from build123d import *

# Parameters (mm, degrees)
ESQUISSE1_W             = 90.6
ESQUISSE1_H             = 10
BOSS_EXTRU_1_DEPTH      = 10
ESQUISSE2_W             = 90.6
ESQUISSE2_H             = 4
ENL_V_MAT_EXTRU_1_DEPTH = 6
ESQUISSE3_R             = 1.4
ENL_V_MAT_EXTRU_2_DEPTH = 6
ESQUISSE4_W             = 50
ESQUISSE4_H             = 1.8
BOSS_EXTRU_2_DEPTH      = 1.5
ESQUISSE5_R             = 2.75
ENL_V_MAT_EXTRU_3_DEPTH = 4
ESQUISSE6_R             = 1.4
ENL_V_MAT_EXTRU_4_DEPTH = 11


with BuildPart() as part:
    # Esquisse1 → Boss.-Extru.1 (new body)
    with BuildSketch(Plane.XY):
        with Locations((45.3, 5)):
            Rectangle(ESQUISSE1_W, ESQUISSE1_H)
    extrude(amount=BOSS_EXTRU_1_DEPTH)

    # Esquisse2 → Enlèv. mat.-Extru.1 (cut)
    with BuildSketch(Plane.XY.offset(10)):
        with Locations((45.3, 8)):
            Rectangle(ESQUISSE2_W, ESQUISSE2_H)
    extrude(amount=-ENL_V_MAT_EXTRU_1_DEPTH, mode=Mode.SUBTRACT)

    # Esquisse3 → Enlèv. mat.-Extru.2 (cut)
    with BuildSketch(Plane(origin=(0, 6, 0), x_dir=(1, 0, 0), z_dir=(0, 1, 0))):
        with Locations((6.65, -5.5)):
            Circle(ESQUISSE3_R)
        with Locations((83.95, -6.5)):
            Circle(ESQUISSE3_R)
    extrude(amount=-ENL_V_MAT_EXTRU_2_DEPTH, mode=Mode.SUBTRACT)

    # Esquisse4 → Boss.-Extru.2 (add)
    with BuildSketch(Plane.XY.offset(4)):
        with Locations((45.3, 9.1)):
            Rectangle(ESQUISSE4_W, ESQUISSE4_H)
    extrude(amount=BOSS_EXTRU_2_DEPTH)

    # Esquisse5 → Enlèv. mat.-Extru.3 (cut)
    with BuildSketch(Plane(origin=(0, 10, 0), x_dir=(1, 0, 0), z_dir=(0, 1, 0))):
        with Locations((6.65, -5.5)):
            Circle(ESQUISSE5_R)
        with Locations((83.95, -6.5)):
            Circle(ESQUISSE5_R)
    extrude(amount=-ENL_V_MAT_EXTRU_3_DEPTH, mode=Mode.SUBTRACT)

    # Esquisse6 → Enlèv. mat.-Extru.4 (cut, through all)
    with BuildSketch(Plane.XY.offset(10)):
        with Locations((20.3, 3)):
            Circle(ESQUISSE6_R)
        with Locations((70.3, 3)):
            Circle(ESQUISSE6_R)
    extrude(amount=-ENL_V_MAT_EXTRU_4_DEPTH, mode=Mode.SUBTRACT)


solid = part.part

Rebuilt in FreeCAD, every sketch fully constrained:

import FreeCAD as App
import Part
import Sketcher

doc = App.newDocument("Part")
body = doc.addObject("PartDesign::Body", "Body")

# Sketch on XY plane
sketch1 = body.newObject("Sketcher::SketchObject", "Sketch")
sketch1.AttachmentSupport = (doc.getObject("XY_Plane"), [""])
sketch1.MapMode = "FlatFace"
sketch1.addGeometry([
    Part.LineSegment(App.Vector(0, 10, 0), App.Vector(0, 0, 0)),
    Part.LineSegment(App.Vector(0, 0, 0), App.Vector(91, 0, 0)),
    Part.LineSegment(App.Vector(91, 0, 0), App.Vector(91, 10, 0)),
    Part.LineSegment(App.Vector(91, 10, 0), App.Vector(0, 10, 0)),
], False)
sketch1.addConstraint([
    Sketcher.Constraint("Coincident", 0, 2, 1, 1),
    Sketcher.Constraint("Coincident", 1, 2, 2, 1),
    Sketcher.Constraint("Coincident", 2, 2, 3, 1),
    Sketcher.Constraint("Coincident", 3, 2, 0, 1),
    Sketcher.Constraint("Vertical", 0),
    Sketcher.Constraint("Horizontal", 1),
    Sketcher.Constraint("Vertical", 2),
    Sketcher.Constraint("Horizontal", 3),
    Sketcher.Constraint("Coincident", 0, 2, -1, 1),
    Sketcher.Constraint("DistanceY", 0, 2, 0, 1, 10.0),
    Sketcher.Constraint("DistanceX", 1, 1, 1, 2, 90.6),
])
pad1 = body.newObject("PartDesign::Pad", "Pad")
pad1.Profile = sketch1
pad1.Length = 10

# Sketch on XY plane
sketch2 = body.newObject("Sketcher::SketchObject", "Sketch001")
sketch2.AttachmentSupport = (doc.getObject("XY_Plane"), [""])
sketch2.MapMode = "FlatFace"
sketch2.AttachmentOffset = App.Placement(App.Vector(0, 0, 10), App.Rotation())
sketch2.addGeometry([
    Part.LineSegment(App.Vector(0, 10, 0), App.Vector(0, 6, 0)),
    Part.LineSegment(App.Vector(0, 6, 0), App.Vector(90.6, 6, 0)),
    Part.LineSegment(App.Vector(90.6, 6, 0), App.Vector(90.6, 10, 0)),
    Part.LineSegment(App.Vector(90.6, 10, 0), App.Vector(0, 10, 0)),
], False)
sketch2.addConstraint([
    Sketcher.Constraint("Coincident", 0, 2, 1, 1),
    Sketcher.Constraint("Coincident", 1, 2, 2, 1),
    Sketcher.Constraint("Coincident", 2, 2, 3, 1),
    Sketcher.Constraint("Coincident", 3, 2, 0, 1),
    Sketcher.Constraint("Vertical", 0),
    Sketcher.Constraint("Horizontal", 1),
    Sketcher.Constraint("Vertical", 2),
    Sketcher.Constraint("Horizontal", 3),
    Sketcher.Constraint("PointOnObject", 0, 2, -2),
    Sketcher.Constraint("DistanceY", 0, 2, 0, 1, 4.0),
    Sketcher.Constraint("DistanceX", 1, 1, 1, 2, 90.6),
    Sketcher.Constraint("DistanceY", -1, 1, 0, 2, 6.0),
])
pocket1 = body.newObject("PartDesign::Pocket", "Pocket")
pocket1.Profile = sketch2
pocket1.Length = 6

# Sketch on XZ plane
sketch3 = body.newObject("Sketcher::SketchObject", "Sketch002")
sketch3.AttachmentSupport = (doc.getObject("XZ_Plane"), [""])
sketch3.MapMode = "FlatFace"
sketch3.AttachmentOffset = App.Placement(App.Vector(0, 0, -6), App.Rotation())
sketch3.addGeometry([
    Part.Circle(App.Vector(6.7, 5.5, 0), App.Vector(0, 0, 1), 1.4),
    Part.Circle(App.Vector(84, 6.5, 0), App.Vector(0, 0, 1), 1.4),
], False)
sketch3.addConstraint([
    Sketcher.Constraint("Equal", 0, 1),
    Sketcher.Constraint("Diameter", 0, 2.8),
    Sketcher.Constraint("DistanceY", 0, 3, 1, 3, 1.0),
    Sketcher.Constraint("DistanceY", -1, 1, 0, 3, 5.5),
    Sketcher.Constraint("DistanceX", 0, 3, 1, 3, 77.3),
    Sketcher.Constraint("DistanceX", -1, 1, 0, 3, 6.65),
])
pocket2 = body.newObject("PartDesign::Pocket", "Pocket001")
pocket2.Profile = sketch3
pocket2.Length = 6
pocket2.Reversed = True

# Sketch on XY plane
sketch4 = body.newObject("Sketcher::SketchObject", "Sketch003")
sketch4.AttachmentSupport = (doc.getObject("XY_Plane"), [""])
sketch4.MapMode = "FlatFace"
sketch4.AttachmentOffset = App.Placement(App.Vector(0, 0, 4), App.Rotation())
sketch4.addGeometry([
    Part.LineSegment(App.Vector(20.3, 10, 0), App.Vector(20.3, 8.2, 0)),
    Part.LineSegment(App.Vector(20.3, 8.2, 0), App.Vector(70.3, 8.2, 0)),
    Part.LineSegment(App.Vector(70.3, 8.2, 0), App.Vector(70.3, 10, 0)),
    Part.LineSegment(App.Vector(70.3, 10, 0), App.Vector(20.3, 10, 0)),
], False)
sketch4.addConstraint([
    Sketcher.Constraint("Coincident", 0, 2, 1, 1),
    Sketcher.Constraint("Coincident", 1, 2, 2, 1),
    Sketcher.Constraint("Coincident", 2, 2, 3, 1),
    Sketcher.Constraint("Coincident", 3, 2, 0, 1),
    Sketcher.Constraint("Vertical", 0),
    Sketcher.Constraint("Horizontal", 1),
    Sketcher.Constraint("Vertical", 2),
    Sketcher.Constraint("Horizontal", 3),
    Sketcher.Constraint("DistanceX", 1, 1, 1, 2, 50.0),
    Sketcher.Constraint("DistanceY", 0, 2, 0, 1, 1.8),
    Sketcher.Constraint("DistanceY", -1, 1, 2, 2, 10.0),
    Sketcher.Constraint("DistanceX", -1, 1, 0, 2, 20.3),
])
pad2 = body.newObject("PartDesign::Pad", "Pad001")
pad2.Profile = sketch4
pad2.Length = 1.5

# Sketch on XZ plane
sketch5 = body.newObject("Sketcher::SketchObject", "Sketch004")
sketch5.AttachmentSupport = (doc.getObject("XZ_Plane"), [""])
sketch5.MapMode = "FlatFace"
sketch5.AttachmentOffset = App.Placement(App.Vector(0, 0, -10), App.Rotation())
sketch5.addGeometry([
    Part.Circle(App.Vector(6.7, 5.5, 0), App.Vector(0, 0, 1), 2.8),
    Part.Circle(App.Vector(84, 6.5, 0), App.Vector(0, 0, 1), 2.8),
], False)
sketch5.addConstraint([
    Sketcher.Constraint("Equal", 0, 1),
    Sketcher.Constraint("Diameter", 0, 5.5),
    Sketcher.Constraint("DistanceY", 0, 3, 1, 3, 1.0),
    Sketcher.Constraint("DistanceY", -1, 1, 0, 3, 5.5),
    Sketcher.Constraint("DistanceX", 0, 3, 1, 3, 77.3),
    Sketcher.Constraint("DistanceX", -1, 1, 0, 3, 6.65),
])
pocket3 = body.newObject("PartDesign::Pocket", "Pocket002")
pocket3.Profile = sketch5
pocket3.Length = 4
pocket3.Reversed = True

# Sketch on XY plane
sketch6 = body.newObject("Sketcher::SketchObject", "Sketch005")
sketch6.AttachmentSupport = (doc.getObject("XY_Plane"), [""])
sketch6.MapMode = "FlatFace"
sketch6.AttachmentOffset = App.Placement(App.Vector(0, 0, 10), App.Rotation())
sketch6.addGeometry([
    Part.Circle(App.Vector(20.3, 3, 0), App.Vector(0, 0, 1), 1.4),
    Part.Circle(App.Vector(70.3, 3, 0), App.Vector(0, 0, 1), 1.4),
], False)
sketch6.addConstraint([
    Sketcher.Constraint("Equal", 0, 1),
    Sketcher.Constraint("Horizontal", 0, 3, 1, 3),
    Sketcher.Constraint("Diameter", 0, 2.8),
    Sketcher.Constraint("DistanceY", -1, 1, 0, 3, 3.0),
    Sketcher.Constraint("DistanceX", 0, 3, 1, 3, 50.0),
    Sketcher.Constraint("DistanceX", -1, 1, 0, 3, 20.3),
])
pocket4 = body.newObject("PartDesign::Pocket", "Pocket003")
pocket4.Profile = sketch6
pocket4.Type = "ThroughAll"

doc.recompute()
